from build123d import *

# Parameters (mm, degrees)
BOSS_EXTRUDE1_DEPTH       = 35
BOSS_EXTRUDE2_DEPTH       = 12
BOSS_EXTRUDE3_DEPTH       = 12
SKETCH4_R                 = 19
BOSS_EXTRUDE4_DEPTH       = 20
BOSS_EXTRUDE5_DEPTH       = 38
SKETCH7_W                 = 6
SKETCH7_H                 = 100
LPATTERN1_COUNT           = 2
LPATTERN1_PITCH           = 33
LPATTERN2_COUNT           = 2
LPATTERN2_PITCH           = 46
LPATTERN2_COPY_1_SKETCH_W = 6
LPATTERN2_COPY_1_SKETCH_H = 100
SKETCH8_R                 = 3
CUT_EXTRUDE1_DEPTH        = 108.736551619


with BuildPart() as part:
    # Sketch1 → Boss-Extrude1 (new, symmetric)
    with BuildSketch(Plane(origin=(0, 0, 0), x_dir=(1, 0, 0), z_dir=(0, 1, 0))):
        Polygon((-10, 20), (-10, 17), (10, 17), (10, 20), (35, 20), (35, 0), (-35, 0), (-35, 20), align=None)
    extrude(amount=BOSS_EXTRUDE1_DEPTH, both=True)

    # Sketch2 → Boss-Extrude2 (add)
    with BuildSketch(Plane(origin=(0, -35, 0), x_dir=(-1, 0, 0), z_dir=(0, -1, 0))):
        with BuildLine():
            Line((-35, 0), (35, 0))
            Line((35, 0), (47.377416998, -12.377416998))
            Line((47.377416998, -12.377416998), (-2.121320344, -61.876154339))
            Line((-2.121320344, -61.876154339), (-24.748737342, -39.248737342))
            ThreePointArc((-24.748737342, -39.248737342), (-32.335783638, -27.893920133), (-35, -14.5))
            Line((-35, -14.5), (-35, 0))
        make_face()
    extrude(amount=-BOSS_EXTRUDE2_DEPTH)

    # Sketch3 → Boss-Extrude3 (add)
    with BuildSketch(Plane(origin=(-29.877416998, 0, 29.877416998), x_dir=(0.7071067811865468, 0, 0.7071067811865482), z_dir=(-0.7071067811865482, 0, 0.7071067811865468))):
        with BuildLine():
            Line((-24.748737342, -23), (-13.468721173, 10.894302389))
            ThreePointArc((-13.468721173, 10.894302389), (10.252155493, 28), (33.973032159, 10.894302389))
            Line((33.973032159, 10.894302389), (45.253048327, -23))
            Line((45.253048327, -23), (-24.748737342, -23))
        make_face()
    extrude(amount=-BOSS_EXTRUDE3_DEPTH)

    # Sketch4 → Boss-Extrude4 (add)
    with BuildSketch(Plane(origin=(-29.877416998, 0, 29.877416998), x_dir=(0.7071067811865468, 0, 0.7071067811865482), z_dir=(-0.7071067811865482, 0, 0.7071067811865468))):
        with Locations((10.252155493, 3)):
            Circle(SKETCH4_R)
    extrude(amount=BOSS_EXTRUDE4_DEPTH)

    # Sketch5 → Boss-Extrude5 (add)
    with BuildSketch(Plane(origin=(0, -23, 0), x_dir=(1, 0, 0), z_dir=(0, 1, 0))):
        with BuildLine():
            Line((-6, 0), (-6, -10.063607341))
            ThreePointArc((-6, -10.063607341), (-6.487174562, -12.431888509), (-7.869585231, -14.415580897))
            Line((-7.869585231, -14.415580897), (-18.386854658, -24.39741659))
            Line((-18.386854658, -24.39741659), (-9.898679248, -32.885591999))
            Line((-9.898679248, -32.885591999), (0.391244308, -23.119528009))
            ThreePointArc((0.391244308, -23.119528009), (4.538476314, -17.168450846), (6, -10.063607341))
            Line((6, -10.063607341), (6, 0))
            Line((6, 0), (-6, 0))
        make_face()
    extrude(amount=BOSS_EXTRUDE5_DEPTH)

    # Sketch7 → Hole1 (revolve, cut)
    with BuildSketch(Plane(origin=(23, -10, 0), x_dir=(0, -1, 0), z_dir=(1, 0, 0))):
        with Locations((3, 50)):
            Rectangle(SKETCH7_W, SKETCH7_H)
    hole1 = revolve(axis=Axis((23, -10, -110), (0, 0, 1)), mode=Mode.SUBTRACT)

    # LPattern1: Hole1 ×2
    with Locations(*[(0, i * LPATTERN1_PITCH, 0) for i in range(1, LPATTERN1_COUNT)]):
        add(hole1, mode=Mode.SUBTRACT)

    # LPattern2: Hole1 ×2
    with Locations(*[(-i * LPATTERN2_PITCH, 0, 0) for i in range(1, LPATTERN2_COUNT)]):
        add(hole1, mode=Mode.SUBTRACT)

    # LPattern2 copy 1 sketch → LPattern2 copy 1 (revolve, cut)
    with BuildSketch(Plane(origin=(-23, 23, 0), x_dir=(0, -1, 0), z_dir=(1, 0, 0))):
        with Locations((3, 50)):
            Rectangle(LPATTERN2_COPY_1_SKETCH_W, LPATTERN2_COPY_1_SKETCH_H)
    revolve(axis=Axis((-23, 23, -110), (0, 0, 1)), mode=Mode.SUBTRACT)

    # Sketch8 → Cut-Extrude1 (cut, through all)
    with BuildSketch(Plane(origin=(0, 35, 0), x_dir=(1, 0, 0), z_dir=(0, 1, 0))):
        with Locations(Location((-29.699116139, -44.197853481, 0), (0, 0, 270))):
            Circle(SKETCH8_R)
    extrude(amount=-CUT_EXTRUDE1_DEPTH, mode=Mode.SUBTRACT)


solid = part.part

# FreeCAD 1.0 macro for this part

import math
import FreeCAD as App
import Part
import Sketcher
from FreeCAD import Vector
Q = App.Units.Quantity

doc = App.newDocument("Part")
body = doc.addObject("PartDesign::Body", "Body")

sketch1 = body.newObject("Sketcher::SketchObject", "Sketch")
sketch1.AttachmentSupport = (doc.getObject("XZ_Plane"), [""])
sketch1.MapMode = "FlatFace"
sketch1.addGeometry([
    Part.LineSegment(Vector(-10, -17, 0), Vector(-10, -20, 0)),
    Part.LineSegment(Vector(-10, -20, 0), Vector(-35, -20, 0)),
    Part.LineSegment(Vector(-35, -20, 0), Vector(-35, 0, 0)),
    Part.LineSegment(Vector(-35, 0, 0), Vector(35, 0, 0)),
    Part.LineSegment(Vector(35, 0, 0), Vector(35, -20, 0)),
    Part.LineSegment(Vector(35, -20, 0), Vector(10, -20, 0)),
    Part.LineSegment(Vector(10, -20, 0), Vector(10, -17, 0)),
    Part.LineSegment(Vector(10, -17, 0), Vector(-10, -17, 0)),
], False)
sketch1.addConstraint([
    Sketcher.Constraint("Coincident", 0, 2, 1, 1),
    Sketcher.Constraint("Coincident", 1, 2, 2, 1),
    Sketcher.Constraint("Coincident", 2, 2, 3, 1),
    Sketcher.Constraint("Coincident", 3, 2, 4, 1),
    Sketcher.Constraint("Coincident", 4, 2, 5, 1),
    Sketcher.Constraint("Coincident", 5, 2, 6, 1),
    Sketcher.Constraint("Coincident", 6, 2, 7, 1),
    Sketcher.Constraint("Coincident", 7, 2, 0, 1),
    Sketcher.Constraint("Vertical", 0),
    Sketcher.Constraint("Horizontal", 1),
    Sketcher.Constraint("Vertical", 2),
    Sketcher.Constraint("Horizontal", 3),
    Sketcher.Constraint("Vertical", 4),
    Sketcher.Constraint("Horizontal", 5),
    Sketcher.Constraint("Vertical", 6),
    Sketcher.Constraint("Horizontal", 7),
    Sketcher.Constraint("Symmetric", 2, 2, 3, 2, -1, 1),
    Sketcher.Constraint("Symmetric", 0, 2, 5, 2, -2),
    Sketcher.Constraint("Equal", 7, 2),
    Sketcher.Constraint("DistanceX", 1, 2, 1, 1, Q("25 mm")),
    Sketcher.Constraint("DistanceX", 3, 1, 3, 2, Q("70 mm")),
    Sketcher.Constraint("DistanceY", 0, 2, 0, 1, Q("3 mm")),
])
pad1 = body.newObject("PartDesign::Pad", "Pad")
pad1.Profile = sketch1
pad1.Length = 70
pad1.Midplane = True

sketch2 = body.newObject("Sketcher::SketchObject", "Sketch001")
sketch2.AttachmentSupport = (doc.getObject("XZ_Plane"), [""])
sketch2.MapMode = "FlatFace"
sketch2.AttachmentOffset = App.Placement(Vector(0, 0, 35), App.Rotation())
sketch2.addGeometry([
    Part.LineSegment(Vector(-35, 0, 0), Vector(35, 0, 0)),
    Part.LineSegment(Vector(35, 0, 0), Vector(35, 14, 0)),
    Part.ArcOfCircle(Part.Circle(Vector(0, 14, 0), Vector(0, 0, 1), 35), math.radians(0), math.radians(45)),
    Part.LineSegment(Vector(25, 39, 0), Vector(2, 62, 0)),
    Part.LineSegment(Vector(2, 62, 0), Vector(-47, 12, 0)),
    Part.LineSegment(Vector(-47, 12, 0), Vector(-35, 0, 0)),
], False)
sketch2.addConstraint([
    Sketcher.Constraint("Coincident", 0, 2, 1, 1),
    Sketcher.Constraint("Tangent", 1, 2, 2, 1),
    Sketcher.Constraint("Tangent", 2, 2, 3, 1),
    Sketcher.Constraint("Coincident", 3, 2, 4, 1),
    Sketcher.Constraint("Coincident", 4, 2, 5, 1),
    Sketcher.Constraint("Coincident", 5, 2, 0, 1),
    Sketcher.Constraint("Horizontal", 0),
    Sketcher.Constraint("Vertical", 1),
    Sketcher.Constraint("Symmetric", 0, 2, 5, 2, -1, 1),
    Sketcher.Constraint("PointOnObject", 2, 3, -2),
    Sketcher.Constraint("Perpendicular", 3, 4),
    Sketcher.Constraint("Perpendicular", 4, 5),
    Sketcher.Constraint("Radius", 2, Q("35 mm")),
    Sketcher.Constraint("Angle", 3, Q("135 deg")),
    Sketcher.Constraint("Distance", 3, Q("32 mm")),
    Sketcher.Constraint("DistanceY", 1, 1, 1, 2, Q("14.5 mm")),
])
pad2 = body.newObject("PartDesign::Pad", "Pad001")
pad2.Profile = sketch2
pad2.Length = 12
pad2.Reversed = True

sketch3 = body.newObject("Sketcher::SketchObject", "Sketch002")
sketch3.Placement = App.Placement(Vector(-29.877417, 0, 29.877417), App.Rotation(Vector(0.707106781, 0, 0.707106781), Vector(0, 0.999999999, 0), Vector(-0.707106781, 0, 0.707106781), "ZXY"))
sketch3.addGeometry([
    Part.LineSegment(Vector(-13, 11, 0), Vector(-25, -23, 0)),
    Part.LineSegment(Vector(-25, -23, 0), Vector(45, -23, 0)),
    Part.LineSegment(Vector(45, -23, 0), Vector(34, 11, 0)),
    Part.ArcOfCircle(Part.Circle(Vector(10, 3, 0), Vector(0, 0, 1), 25), math.radians(18), math.radians(162)),
], False)
sketch3.addConstraint([
    Sketcher.Constraint("Coincident", 0, 2, 1, 1),
    Sketcher.Constraint("Coincident", 1, 2, 2, 1),
    Sketcher.Constraint("Tangent", 2, 2, 3, 1),
    Sketcher.Constraint("Tangent", 3, 2, 0, 1),
    Sketcher.Constraint("Horizontal", 1),
    Sketcher.Constraint("Horizontal", 2, 2, 3, 2),
    Sketcher.Constraint("Radius", 3, Q("25 mm")),
    Sketcher.Constraint("DistanceY", -1, 1, 3, 3, Q("3 mm")),
    Sketcher.Constraint("DistanceY", 0, 2, -1, 1, Q("23 mm")),
    Sketcher.Constraint("DistanceX", 1, 1, 1, 2, Q("70.001786 mm")),
    Sketcher.Constraint("DistanceX", -1, 1, 1, 2, Q("45.253048 mm")),
])
pad3 = body.newObject("PartDesign::Pad", "Pad002")
pad3.Profile = sketch3
pad3.Length = 12
pad3.Reversed = True

sketch4 = body.newObject("Sketcher::SketchObject", "Sketch003")
sketch4.Placement = App.Placement(Vector(-29.877417, 0, 29.877417), App.Rotation(Vector(0.707106781, 0, 0.707106781), Vector(0, 0.999999999, 0), Vector(-0.707106781, 0, 0.707106781), "ZXY"))
sketch4.addGeometry(Part.Circle(Vector(10, 3, 0), Vector(0, 0, 1), 19), False)
sketch4.addConstraint([
    Sketcher.Constraint("Diameter", 0, Q("38 mm")),
    Sketcher.Constraint("DistanceY", -1, 1, 0, 3, Q("3 mm")),
    Sketcher.Constraint("DistanceX", -1, 1, 0, 3, Q("10.252155 mm")),
])
pad4 = body.newObject("PartDesign::Pad", "Pad003")
pad4.Profile = sketch4
pad4.Length = 20

sketch5 = body.newObject("Sketcher::SketchObject", "Sketch004")
sketch5.AttachmentSupport = (doc.getObject("XZ_Plane"), [""])
sketch5.MapMode = "FlatFace"
sketch5.AttachmentOffset = App.Placement(Vector(0, 0, 23), App.Rotation())
sketch5.addGeometry([
    Part.LineSegment(Vector(-6, 0, 0), Vector(-6, 10.1, 0)),
    Part.ArcOfCircle(Part.Circle(Vector(-12, 10.1, 0), Vector(0, 0, 1), 6), math.radians(0), math.radians(46)),
    Part.LineSegment(Vector(-7.9, 14.4, 0), Vector(-18.4, 24.4, 0)),
    Part.LineSegment(Vector(-18.4, 24.4, 0), Vector(-9.9, 32.9, 0)),
    Part.LineSegment(Vector(-9.9, 32.9, 0), Vector(0.4, 23.1, 0)),
    Part.ArcOfCircle(Part.Circle(Vector(-12, 10.1, 0), Vector(0, 0, 1), 18), math.radians(0), math.radians(46)),
    Part.LineSegment(Vector(6, 10.1, 0), Vector(6, 0, 0)),
    Part.LineSegment(Vector(6, 0, 0), Vector(-6, 0, 0)),
], False)
sketch5.addConstraint([
    Sketcher.Constraint("Tangent", 0, 2, 1, 1),
    Sketcher.Constraint("Tangent", 1, 2, 2, 1),
    Sketcher.Constraint("Coincident", 2, 2, 3, 1),
    Sketcher.Constraint("Coincident", 3, 2, 4, 1),
    Sketcher.Constraint("Tangent", 4, 2, 5, 2),
    Sketcher.Constraint("Tangent", 5, 1, 6, 1),
    Sketcher.Constraint("Coincident", 6, 2, 7, 1),
    Sketcher.Constraint("Coincident", 7, 2, 0, 1),
    Sketcher.Constraint("Vertical", 0),
    Sketcher.Constraint("Vertical", 6),
    Sketcher.Constraint("Horizontal", 7),
    Sketcher.Constraint("Coincident", 5, 3, 1, 3),
    Sketcher.Constraint("Symmetric", 6, 2, 7, 2, -1, 1),
    Sketcher.Constraint("Parallel", 2, 4),
    Sketcher.Constraint("Radius", 1, Q("6 mm")),
    Sketcher.Constraint("Radius", 5, Q("18 mm")),
    Sketcher.Constraint("Angle", 3, Q("45 deg")),
    Sketcher.Constraint("Distance", 2, Q("14.5 mm")),
    Sketcher.Constraint("Distance", 4, Q("14.186562 mm")),
    Sketcher.Constraint("DistanceY", 0, 1, 0, 2, Q("10.063607 mm")),
])
pad5 = body.newObject("PartDesign::Pad", "Pad004")
pad5.Profile = sketch5
pad5.Length = 38
pad5.Reversed = True

sketch6 = body.newObject("Sketcher::SketchObject", "Sketch005")
sketch6.AttachmentSupport = (doc.getObject("YZ_Plane"), [""])
sketch6.MapMode = "FlatFace"
sketch6.AttachmentOffset = App.Placement(Vector(0, 0, 23), App.Rotation())
sketch6.addGeometry([
    Part.LineSegment(Vector(-10, -100, 0), Vector(-10, 0, 0)),
    Part.LineSegment(Vector(-10, 0, 0), Vector(-16, 0, 0)),
    Part.LineSegment(Vector(-16, 0, 0), Vector(-16, -100, 0)),
    Part.LineSegment(Vector(-16, -100, 0), Vector(-10, -100, 0)),
], False)
sketch6.addGeometry(Part.LineSegment(Vector(-10, -100, 0), Vector(-10, 0, 0)), True)
sketch6.addConstraint([
    Sketcher.Constraint("Coincident", 0, 2, 1, 1),
    Sketcher.Constraint("Coincident", 1, 2, 2, 1),
    Sketcher.Constraint("Coincident", 2, 2, 3, 1),
    Sketcher.Constraint("Coincident", 3, 2, 0, 1),
    Sketcher.Constraint("Vertical", 0),
    Sketcher.Constraint("Horizontal", 1),
    Sketcher.Constraint("Vertical", 2),
    Sketcher.Constraint("Horizontal", 3),
    Sketcher.Constraint("Vertical", 4),
    Sketcher.Constraint("Coincident", 4, 1, 3, 2),
    Sketcher.Constraint("PointOnObject", 0, 2, -1),
    Sketcher.Constraint("PointOnObject", 4, 2, -1),
    Sketcher.Constraint("DistanceX", 1, 2, 1, 1, Q("6 mm")),
    Sketcher.Constraint("DistanceY", 0, 1, 0, 2, Q("100 mm")),
    Sketcher.Constraint("DistanceX", 0, 2, -1, 1, Q("10 mm")),
])
groove = body.newObject("PartDesign::Groove", "Groove")
groove.Profile = sketch6
groove.ReferenceAxis = (sketch6, ["Axis0"])
groove.Angle = 360
doc.recompute()

linearpattern = body.newObject("PartDesign::LinearPattern", "LinearPattern")
linearpattern.Originals = [groove]
linearpattern.Direction = (doc.getObject("Y_Axis"), [""])
linearpattern.Mode = "offset"
linearpattern.Offset = 33
linearpattern.Occurrences = 2
body.Tip = linearpattern
doc.recompute()

linearpattern2 = body.newObject("PartDesign::LinearPattern", "LinearPattern001")
linearpattern2.Originals = [groove]
linearpattern2.Direction = (doc.getObject("X_Axis"), [""])
linearpattern2.Mode = "offset"
linearpattern2.Offset = 46
linearpattern2.Occurrences = 2
linearpattern2.Reversed = True
body.Tip = linearpattern2

sketch7 = body.newObject("Sketcher::SketchObject", "Sketch006")
sketch7.AttachmentSupport = (doc.getObject("YZ_Plane"), [""])
sketch7.MapMode = "FlatFace"
sketch7.AttachmentOffset = App.Placement(Vector(0, 0, -23), App.Rotation())
sketch7.addGeometry([
    Part.LineSegment(Vector(23, -100, 0), Vector(23, 0, 0)),
    Part.LineSegment(Vector(23, 0, 0), Vector(17, 0, 0)),
    Part.LineSegment(Vector(17, 0, 0), Vector(17, -100, 0)),
    Part.LineSegment(Vector(17, -100, 0), Vector(23, -100, 0)),
], False)
sketch7.addGeometry(Part.LineSegment(Vector(23, -100, 0), Vector(23, 0, 0)), True)
sketch7.addConstraint([
    Sketcher.Constraint("Coincident", 0, 2, 1, 1),
    Sketcher.Constraint("Coincident", 1, 2, 2, 1),
    Sketcher.Constraint("Coincident", 2, 2, 3, 1),
    Sketcher.Constraint("Coincident", 3, 2, 0, 1),
    Sketcher.Constraint("Vertical", 0),
    Sketcher.Constraint("Horizontal", 1),
    Sketcher.Constraint("Vertical", 2),
    Sketcher.Constraint("Horizontal", 3),
    Sketcher.Constraint("Vertical", 4),
    Sketcher.Constraint("Coincident", 4, 1, 3, 2),
    Sketcher.Constraint("PointOnObject", 0, 2, -1),
    Sketcher.Constraint("PointOnObject", 4, 2, -1),
    Sketcher.Constraint("DistanceX", 1, 2, 1, 1, Q("6 mm")),
    Sketcher.Constraint("DistanceY", 0, 1, 0, 2, Q("100 mm")),
    Sketcher.Constraint("DistanceX", -1, 1, 0, 2, Q("23 mm")),
])
groove2 = body.newObject("PartDesign::Groove", "Groove001")
groove2.Profile = sketch7
groove2.ReferenceAxis = (sketch7, ["Axis0"])
groove2.Angle = 360

sketch8 = body.newObject("Sketcher::SketchObject", "Sketch007")
sketch8.AttachmentSupport = (doc.getObject("XZ_Plane"), [""])
sketch8.MapMode = "FlatFace"
sketch8.AttachmentOffset = App.Placement(Vector(0, 0, -35), App.Rotation())
sketch8.addGeometry(Part.Circle(Vector(-29.7, 44.2, 0), Vector(0, 0, 1), 3), False)
sketch8.addConstraint([
    Sketcher.Constraint("Diameter", 0, Q("6 mm")),
    Sketcher.Constraint("DistanceX", 0, 3, -1, 1, Q("29.699116 mm")),
    Sketcher.Constraint("DistanceY", -1, 1, 0, 3, Q("44.197853 mm")),
])
pocket1 = body.newObject("PartDesign::Pocket", "Pocket")
pocket1.Profile = sketch8
pocket1.Type = "ThroughAll"
pocket1.Reversed = True

doc.recompute()
